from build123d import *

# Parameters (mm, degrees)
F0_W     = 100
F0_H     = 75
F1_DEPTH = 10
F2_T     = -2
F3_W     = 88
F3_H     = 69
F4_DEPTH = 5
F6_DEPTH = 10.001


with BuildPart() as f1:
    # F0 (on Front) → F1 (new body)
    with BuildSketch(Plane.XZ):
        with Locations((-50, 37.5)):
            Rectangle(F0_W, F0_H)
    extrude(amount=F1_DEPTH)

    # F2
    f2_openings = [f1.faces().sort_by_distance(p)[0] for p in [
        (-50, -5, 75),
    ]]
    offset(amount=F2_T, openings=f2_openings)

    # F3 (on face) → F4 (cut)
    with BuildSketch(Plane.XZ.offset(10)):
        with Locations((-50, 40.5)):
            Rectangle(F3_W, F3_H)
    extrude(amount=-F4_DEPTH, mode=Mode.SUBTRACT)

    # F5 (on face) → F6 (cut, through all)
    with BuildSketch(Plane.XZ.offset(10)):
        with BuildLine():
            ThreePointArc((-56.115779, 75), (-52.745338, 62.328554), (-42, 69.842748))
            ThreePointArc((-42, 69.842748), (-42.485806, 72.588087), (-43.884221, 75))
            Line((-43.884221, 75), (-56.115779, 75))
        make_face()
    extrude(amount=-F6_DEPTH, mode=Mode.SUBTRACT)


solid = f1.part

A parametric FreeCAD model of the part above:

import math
import FreeCAD as App
import Part
import Sketcher
Q = App.Units.Quantity


def faces_at(feature, points):
    """Names of the faces that lie closest to the given points."""
    faces = feature.Shape.Faces
    near = lambda p: min(range(len(faces)), key=lambda i: faces[i].distToShape(Part.Vertex(*p))[0])
    return sorted({f"Face{near(p) + 1}" for p in points})

doc = App.newDocument("Part")
body = doc.addObject("PartDesign::Body", "Body")

# Sketch on XZ plane
sketch1 = body.newObject("Sketcher::SketchObject", "Sketch")
sketch1.AttachmentSupport = (doc.getObject("XZ_Plane"), [""])
sketch1.MapMode = "FlatFace"
sketch1.addGeometry([
    Part.LineSegment(App.Vector(-100, 75, 0), App.Vector(-100, 0, 0)),
    Part.LineSegment(App.Vector(-100, 0, 0), App.Vector(0, 0, 0)),
    Part.LineSegment(App.Vector(0, 0, 0), App.Vector(0, 75, 0)),
    Part.LineSegment(App.Vector(0, 75, 0), App.Vector(-100, 75, 0)),
], False)
sketch1.addConstraint([
    Sketcher.Constraint("Coincident", 0, 2, 1, 1),
    Sketcher.Constraint("Coincident", 1, 2, 2, 1),
    Sketcher.Constraint("Coincident", 2, 2, 3, 1),
    Sketcher.Constraint("Coincident", 3, 2, 0, 1),
    Sketcher.Constraint("Vertical", 0),
    Sketcher.Constraint("Horizontal", 1),
    Sketcher.Constraint("Vertical", 2),
    Sketcher.Constraint("Horizontal", 3),
    Sketcher.Constraint("Coincident", 1, 2, -1, 1),
    Sketcher.Constraint("DistanceX", 1, 1, 1, 2, Q("100 mm")),
    Sketcher.Constraint("DistanceY", 0, 2, 0, 1, Q("75 mm")),
])
pad1 = body.newObject("PartDesign::Pad", "Pad")
pad1.Profile = sketch1
pad1.Length = 10
doc.recompute()

thickness = body.newObject("PartDesign::Thickness", "Thickness")
thickness.Base = (pad1, faces_at(pad1, [(-50, -5, 75)]))
thickness.Value = 2
thickness.Reversed = True
thickness.Join = "Arc"

# Sketch on XZ plane
sketch2 = body.newObject("Sketcher::SketchObject", "Sketch001")
sketch2.AttachmentSupport = (doc.getObject("XZ_Plane"), [""])
sketch2.MapMode = "FlatFace"
sketch2.AttachmentOffset = App.Placement(App.Vector(0, 0, 10), App.Rotation())
sketch2.addGeometry([
    Part.LineSegment(App.Vector(-94, 75, 0), App.Vector(-94, 6, 0)),
    Part.LineSegment(App.Vector(-94, 6, 0), App.Vector(-6, 6, 0)),
    Part.LineSegment(App.Vector(-6, 6, 0), App.Vector(-6, 75, 0)),
    Part.LineSegment(App.Vector(-6, 75, 0), App.Vector(-94, 75, 0)),
], False)
sketch2.addConstraint([
    Sketcher.Constraint("Coincident", 0, 2, 1, 1),
    Sketcher.Constraint("Coincident", 1, 2, 2, 1),
    Sketcher.Constraint("Coincident", 2, 2, 3, 1),
    Sketcher.Constraint("Coincident", 3, 2, 0, 1),
    Sketcher.Constraint("Vertical", 0),
    Sketcher.Constraint("Horizontal", 1),
    Sketcher.Constraint("Vertical", 2),
    Sketcher.Constraint("Horizontal", 3),
    Sketcher.Constraint("DistanceX", 1, 1, 1, 2, Q("88 mm")),
    Sketcher.Constraint("DistanceY", 0, 2, 0, 1, Q("69 mm")),
    Sketcher.Constraint("DistanceX", 0, 2, -1, 1, Q("94 mm")),
    Sketcher.Constraint("DistanceY", -1, 1, 0, 2, Q("6 mm")),
])
pocket1 = body.newObject("PartDesign::Pocket", "Pocket")
pocket1.Profile = sketch2
pocket1.Length = 5

# Sketch on XZ plane
sketch3 = body.newObject("Sketcher::SketchObject", "Sketch002")
sketch3.AttachmentSupport = (doc.getObject("XZ_Plane"), [""])
sketch3.MapMode = "FlatFace"
sketch3.AttachmentOffset = App.Placement(App.Vector(0, 0, 10), App.Rotation())
sketch3.addGeometry([
    Part.ArcOfCircle(Part.Circle(App.Vector(-50, 70, 0), App.Vector(0, 0, 1), 8), math.radians(140), math.radians(360)),
    Part.ArcOfCircle(Part.Circle(App.Vector(-50, 70, 0), App.Vector(0, 0, 1), 8), math.radians(0), math.radians(40)),
    Part.LineSegment(App.Vector(-44, 75, 0), App.Vector(-56, 75, 0)),
], False)
sketch3.addConstraint([
    Sketcher.Constraint("Tangent", 0, 2, 1, 1),
    Sketcher.Constraint("Coincident", 1, 2, 2, 1),
    Sketcher.Constraint("Coincident", 2, 2, 0, 1),
    Sketcher.Constraint("Horizontal", 2),
    Sketcher.Constraint("Horizontal", 1, 3, 0, 2),
    Sketcher.Constraint("Radius", 0, Q("8 mm")),
    Sketcher.Constraint("DistanceX", 0, 3, -1, 1, Q("50 mm")),
    Sketcher.Constraint("DistanceY", -1, 1, 1, 2, Q("75 mm")),
    Sketcher.Constraint("Radius", 1, Q("8.000003 mm")),
    Sketcher.Constraint("DistanceX", 2, 2, 2, 1, Q("12.231558 mm")),
])
pocket2 = body.newObject("PartDesign::Pocket", "Pocket001")
pocket2.Profile = sketch3
pocket2.Type = "ThroughAll"

doc.recompute()
